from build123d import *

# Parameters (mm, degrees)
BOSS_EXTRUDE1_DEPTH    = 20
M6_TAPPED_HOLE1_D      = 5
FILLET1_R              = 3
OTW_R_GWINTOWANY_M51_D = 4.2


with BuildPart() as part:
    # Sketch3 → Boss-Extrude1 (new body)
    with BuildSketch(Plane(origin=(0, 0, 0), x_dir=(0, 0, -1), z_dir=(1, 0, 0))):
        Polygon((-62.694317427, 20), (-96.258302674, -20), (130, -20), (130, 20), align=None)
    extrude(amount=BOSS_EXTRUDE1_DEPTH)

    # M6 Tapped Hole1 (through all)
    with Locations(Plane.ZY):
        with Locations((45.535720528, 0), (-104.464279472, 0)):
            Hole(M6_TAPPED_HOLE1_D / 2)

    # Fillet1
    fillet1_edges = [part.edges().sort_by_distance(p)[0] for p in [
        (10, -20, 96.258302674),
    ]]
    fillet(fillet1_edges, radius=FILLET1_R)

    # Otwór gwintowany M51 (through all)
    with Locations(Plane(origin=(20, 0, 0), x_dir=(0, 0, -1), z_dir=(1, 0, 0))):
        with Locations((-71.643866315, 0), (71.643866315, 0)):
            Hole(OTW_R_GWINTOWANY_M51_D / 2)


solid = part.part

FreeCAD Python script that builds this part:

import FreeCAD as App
import Part
import Sketcher

V = App.Vector
Q = App.Units.Quantity


def edges_at(feature, points):
    """Names of the edges that pass closest to the given points."""
    edges = feature.Shape.Edges
    near = lambda p: min(range(len(edges)), key=lambda i: edges[i].distToShape(Part.Vertex(*p))[0])
    return sorted({f"Edge{near(p) + 1}" for p in points})


def add_polygon(sketch, points):
    """Adds a closed chain of lines whose ends are joined by coincident constraints."""
    first, n = sketch.GeometryCount, len(points)
    for a, b in zip(points, points[1:] + points[:1]):
        sketch.addGeometry(Part.LineSegment(App.Vector(*a, 0), App.Vector(*b, 0)), False)
    for i in range(n):
        sketch.addConstraint(Sketcher.Constraint("Coincident", first + i, 2, first + (i + 1) % n, 1))

doc = App.newDocument("Part")
body = doc.addObject("PartDesign::Body", "Body")

# Sketch on YZ plane
sketch1 = doc.addObject("Sketcher::SketchObject", "Sketch")
body.addObject(sketch1)
sketch1.AttachmentSupport = (doc.YZ_Plane, [""])
sketch1.MapMode = "FlatFace"
add_polygon(sketch1, [(20, 63), (-20, 96), (-20, -130), (20, -130)])  # lines 0-3
sketch1.addConstraint(Sketcher.Constraint("Vertical", 1))
sketch1.addConstraint(Sketcher.Constraint("Horizontal", 2))
sketch1.addConstraint(Sketcher.Constraint("Vertical", 3))
sketch1.addConstraint(Sketcher.Constraint("DistanceX", 2, 1, 2, 2, 40.0))
sketch1.addConstraint(Sketcher.Constraint("Angle", 0, Q("140 deg")))
sketch1.addConstraint(Sketcher.Constraint("DistanceX", 0, 2, -1, 1, 20.0))
sketch1.addConstraint(Sketcher.Constraint("DistanceY", 1, 2, -1, 1, 130.0))
sketch1.addConstraint(Sketcher.Constraint("DistanceY", 1, 2, 1, 1, 226.258303))
pad1 = doc.addObject("PartDesign::Pad", "Pad")
body.addObject(pad1)
pad1.Profile = sketch1
pad1.Length = 20

# Sketch on YZ plane
sketch2 = doc.addObject("Sketcher::SketchObject", "Sketch001")
body.addObject(sketch2)
sketch2.AttachmentSupport = (doc.YZ_Plane, [""])
sketch2.MapMode = "FlatFace"
sketch2.addGeometry(Part.Circle(V(0, 45.5, 0), V(0, 0, 1), 2.5), False)
sketch2.addGeometry(Part.Circle(V(0, -104.5, 0), V(0, 0, 1), 2.5), False)
sketch2.addConstraint(Sketcher.Constraint("Equal", 0, 1))
sketch2.addConstraint(Sketcher.Constraint("PointOnObject", 0, 3, -2))
sketch2.addConstraint(Sketcher.Constraint("PointOnObject", 1, 3, -2))
sketch2.addConstraint(Sketcher.Constraint("Diameter", 0, 5.0))
sketch2.addConstraint(Sketcher.Constraint("DistanceY", 1, 3, 0, 3, 150.0))
sketch2.addConstraint(Sketcher.Constraint("DistanceY", -1, 1, 0, 3, 45.535721))
doc.recompute()
hole = doc.addObject("PartDesign::Hole", "Hole")
body.addObject(hole)
hole.Profile = sketch2
hole.ThreadType = "None"
hole.Diameter = 5
hole.DepthType = "ThroughAll"
hole.Reversed = True
doc.recompute()

fillet = doc.addObject("PartDesign::Fillet", "Fillet")
body.addObject(fillet)
fillet.Base = (hole, edges_at(hole, [(10, -20, 96.258)]))
fillet.Radius = 3

# Sketch on YZ plane
sketch3 = doc.addObject("Sketcher::SketchObject", "Sketch002")
body.addObject(sketch3)
sketch3.AttachmentSupport = (doc.YZ_Plane, [""])
sketch3.MapMode = "FlatFace"
sketch3.AttachmentOffset = App.Placement(V(0, 0, 20), App.Rotation())
sketch3.addGeometry(Part.Circle(V(0, 71.6, 0), V(0, 0, 1), 2.1), False)
sketch3.addGeometry(Part.Circle(V(0, -71.6, 0), V(0, 0, 1), 2.1), False)
sketch3.addConstraint(Sketcher.Constraint("Equal", 0, 1))
sketch3.addConstraint(Sketcher.Constraint("Symmetric", 0, 3, 1, 3, -1, 1))
sketch3.addConstraint(Sketcher.Constraint("PointOnObject", 0, 3, -2))
sketch3.addConstraint(Sketcher.Constraint("Diameter", 0, 4.2))
sketch3.addConstraint(Sketcher.Constraint("DistanceY", -1, 1, 0, 3, 71.643866))
doc.recompute()
hole2 = doc.addObject("PartDesign::Hole", "Hole001")
body.addObject(hole2)
hole2.Profile = sketch3
hole2.ThreadType = "None"
hole2.Diameter = 4.2
hole2.DepthType = "ThroughAll"

doc.recompute()
